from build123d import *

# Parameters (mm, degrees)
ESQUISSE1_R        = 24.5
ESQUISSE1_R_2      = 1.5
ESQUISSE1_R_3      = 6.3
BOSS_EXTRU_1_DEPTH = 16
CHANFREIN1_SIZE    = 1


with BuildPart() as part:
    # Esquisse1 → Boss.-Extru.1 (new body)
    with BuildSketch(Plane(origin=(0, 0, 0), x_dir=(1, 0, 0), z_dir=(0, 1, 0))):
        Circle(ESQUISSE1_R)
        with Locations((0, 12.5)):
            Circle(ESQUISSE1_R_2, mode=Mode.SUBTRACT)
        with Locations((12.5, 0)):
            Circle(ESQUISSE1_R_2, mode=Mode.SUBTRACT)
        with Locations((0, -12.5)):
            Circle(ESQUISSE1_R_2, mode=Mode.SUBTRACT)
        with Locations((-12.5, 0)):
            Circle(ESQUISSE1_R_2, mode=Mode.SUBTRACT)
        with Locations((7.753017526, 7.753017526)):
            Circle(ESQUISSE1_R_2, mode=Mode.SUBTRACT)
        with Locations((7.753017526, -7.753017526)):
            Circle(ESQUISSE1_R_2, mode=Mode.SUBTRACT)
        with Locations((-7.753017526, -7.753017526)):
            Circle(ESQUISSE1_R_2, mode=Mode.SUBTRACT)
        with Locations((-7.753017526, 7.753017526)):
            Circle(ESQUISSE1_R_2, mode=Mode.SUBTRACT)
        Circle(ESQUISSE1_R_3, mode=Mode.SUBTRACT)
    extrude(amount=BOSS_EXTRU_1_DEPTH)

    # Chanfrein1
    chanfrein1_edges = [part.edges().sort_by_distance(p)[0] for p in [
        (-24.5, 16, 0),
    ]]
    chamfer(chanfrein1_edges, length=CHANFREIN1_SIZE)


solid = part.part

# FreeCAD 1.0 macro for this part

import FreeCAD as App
import Part
import Sketcher

V = App.Vector


def edges_at(feature, points):
    """Names of the edges that pass closest to the given points."""
    edges = feature.Shape.Edges
    near = lambda p: min(range(len(edges)), key=lambda i: edges[i].distToShape(Part.Vertex(*p))[0])
    return sorted({f"Edge{near(p) + 1}" for p in points})

doc = App.newDocument("Part")
params = doc.addObject("Spreadsheet::Sheet", "Params")
for row, (alias, value) in enumerate([
    ("sketch1_diameter", "49 mm"),
    ("sketch1_diameter2", "3 mm"),
    ("sketch1_diameter3", "12.6 mm"),
    ("pad1_length", "16 mm"),
    ("chamfer_size", "1 mm"),
], start=1):
    params.set(f"A{row}", alias)
    params.set(f"B{row}", "=" + value)
    params.setAlias(f"B{row}", alias)

body = doc.addObject("PartDesign::Body", "Body")

# Sketch on XZ plane
sketch1 = body.newObject("Sketcher::SketchObject", "Sketch")
sketch1.AttachmentSupport = (doc.getObject("XZ_Plane"), [""])
sketch1.MapMode = "FlatFace"
sketch1.addGeometry([
    Part.Circle(V(0, 0, 0), V(0, 0, 1), 24.5),  # 0
    Part.Circle(V(-7.8, 7.8, 0), V(0, 0, 1), 1.5),  # 1
    Part.Circle(V(0, 12.5, 0), V(0, 0, 1), 1.5),  # 2
    Part.Circle(V(7.8, 7.8, 0), V(0, 0, 1), 1.5),  # 3
    Part.Circle(V(-12.5, 0, 0), V(0, 0, 1), 1.5),  # 4
    Part.Circle(V(-7.8, -7.8, 0), V(0, 0, 1), 1.5),  # 5
    Part.Circle(V(0, 0, 0), V(0, 0, 1), 6.3),  # 6
    Part.Circle(V(12.5, 0, 0), V(0, 0, 1), 1.5),  # 7
    Part.Circle(V(0, -12.5, 0), V(0, 0, 1), 1.5),  # 8
    Part.Circle(V(7.8, -7.8, 0), V(0, 0, 1), 1.5),  # 9
], False)
sketch1.addConstraint([
    Sketcher.Constraint("Coincident", 0, 3, -1, 1),
    Sketcher.Constraint("Coincident", 6, 3, -1, 1),
    Sketcher.Constraint("Equal", 1, 2),
    Sketcher.Constraint("Equal", 2, 3),
    Sketcher.Constraint("Equal", 3, 4),
    Sketcher.Constraint("Equal", 4, 5),
    Sketcher.Constraint("Equal", 5, 7),
    Sketcher.Constraint("Equal", 7, 8),
    Sketcher.Constraint("Equal", 8, 9),
    Sketcher.Constraint("Symmetric", 3, 3, 5, 3, -1, 1),
    Sketcher.Constraint("Symmetric", 4, 3, 7, 3, -1, 1),
    Sketcher.Constraint("Symmetric", 2, 3, 8, 3, -1, 1),
    Sketcher.Constraint("Symmetric", 1, 3, 9, 3, -1, 1),
    Sketcher.Constraint("Symmetric", 1, 3, 3, 3, -2),
    Sketcher.Constraint("PointOnObject", 2, 3, -2),
    Sketcher.Constraint("PointOnObject", 4, 3, -1),
    Sketcher.Constraint("Diameter", 0, 49.0),
    Sketcher.Constraint("Diameter", 1, 3.0),
    Sketcher.Constraint("Diameter", 6, 12.6),
    Sketcher.Constraint("DistanceY", -1, 1, 2, 3, 12.5),
    Sketcher.Constraint("DistanceX", 4, 3, -1, 1, 12.5),
    Sketcher.Constraint("DistanceX", 1, 3, -1, 1, 7.753018),
    Sketcher.Constraint("DistanceY", -1, 1, 1, 3, 7.753018),
])
sketch1.setExpression("Constraints[16]", "Params.sketch1_diameter")
sketch1.setExpression("Constraints[17]", "Params.sketch1_diameter2")
sketch1.setExpression("Constraints[18]", "Params.sketch1_diameter3")
pad1 = body.newObject("PartDesign::Pad", "Pad")
pad1.Profile = sketch1
pad1.setExpression("Length", "Params.pad1_length")
pad1.Reversed = True
doc.recompute()

chamfer = body.newObject("PartDesign::Chamfer", "Chamfer")
chamfer.Base = (pad1, edges_at(pad1, [(-24.5, 16, 0)]))
chamfer.setExpression("Size", "Params.chamfer_size")

doc.recompute()
